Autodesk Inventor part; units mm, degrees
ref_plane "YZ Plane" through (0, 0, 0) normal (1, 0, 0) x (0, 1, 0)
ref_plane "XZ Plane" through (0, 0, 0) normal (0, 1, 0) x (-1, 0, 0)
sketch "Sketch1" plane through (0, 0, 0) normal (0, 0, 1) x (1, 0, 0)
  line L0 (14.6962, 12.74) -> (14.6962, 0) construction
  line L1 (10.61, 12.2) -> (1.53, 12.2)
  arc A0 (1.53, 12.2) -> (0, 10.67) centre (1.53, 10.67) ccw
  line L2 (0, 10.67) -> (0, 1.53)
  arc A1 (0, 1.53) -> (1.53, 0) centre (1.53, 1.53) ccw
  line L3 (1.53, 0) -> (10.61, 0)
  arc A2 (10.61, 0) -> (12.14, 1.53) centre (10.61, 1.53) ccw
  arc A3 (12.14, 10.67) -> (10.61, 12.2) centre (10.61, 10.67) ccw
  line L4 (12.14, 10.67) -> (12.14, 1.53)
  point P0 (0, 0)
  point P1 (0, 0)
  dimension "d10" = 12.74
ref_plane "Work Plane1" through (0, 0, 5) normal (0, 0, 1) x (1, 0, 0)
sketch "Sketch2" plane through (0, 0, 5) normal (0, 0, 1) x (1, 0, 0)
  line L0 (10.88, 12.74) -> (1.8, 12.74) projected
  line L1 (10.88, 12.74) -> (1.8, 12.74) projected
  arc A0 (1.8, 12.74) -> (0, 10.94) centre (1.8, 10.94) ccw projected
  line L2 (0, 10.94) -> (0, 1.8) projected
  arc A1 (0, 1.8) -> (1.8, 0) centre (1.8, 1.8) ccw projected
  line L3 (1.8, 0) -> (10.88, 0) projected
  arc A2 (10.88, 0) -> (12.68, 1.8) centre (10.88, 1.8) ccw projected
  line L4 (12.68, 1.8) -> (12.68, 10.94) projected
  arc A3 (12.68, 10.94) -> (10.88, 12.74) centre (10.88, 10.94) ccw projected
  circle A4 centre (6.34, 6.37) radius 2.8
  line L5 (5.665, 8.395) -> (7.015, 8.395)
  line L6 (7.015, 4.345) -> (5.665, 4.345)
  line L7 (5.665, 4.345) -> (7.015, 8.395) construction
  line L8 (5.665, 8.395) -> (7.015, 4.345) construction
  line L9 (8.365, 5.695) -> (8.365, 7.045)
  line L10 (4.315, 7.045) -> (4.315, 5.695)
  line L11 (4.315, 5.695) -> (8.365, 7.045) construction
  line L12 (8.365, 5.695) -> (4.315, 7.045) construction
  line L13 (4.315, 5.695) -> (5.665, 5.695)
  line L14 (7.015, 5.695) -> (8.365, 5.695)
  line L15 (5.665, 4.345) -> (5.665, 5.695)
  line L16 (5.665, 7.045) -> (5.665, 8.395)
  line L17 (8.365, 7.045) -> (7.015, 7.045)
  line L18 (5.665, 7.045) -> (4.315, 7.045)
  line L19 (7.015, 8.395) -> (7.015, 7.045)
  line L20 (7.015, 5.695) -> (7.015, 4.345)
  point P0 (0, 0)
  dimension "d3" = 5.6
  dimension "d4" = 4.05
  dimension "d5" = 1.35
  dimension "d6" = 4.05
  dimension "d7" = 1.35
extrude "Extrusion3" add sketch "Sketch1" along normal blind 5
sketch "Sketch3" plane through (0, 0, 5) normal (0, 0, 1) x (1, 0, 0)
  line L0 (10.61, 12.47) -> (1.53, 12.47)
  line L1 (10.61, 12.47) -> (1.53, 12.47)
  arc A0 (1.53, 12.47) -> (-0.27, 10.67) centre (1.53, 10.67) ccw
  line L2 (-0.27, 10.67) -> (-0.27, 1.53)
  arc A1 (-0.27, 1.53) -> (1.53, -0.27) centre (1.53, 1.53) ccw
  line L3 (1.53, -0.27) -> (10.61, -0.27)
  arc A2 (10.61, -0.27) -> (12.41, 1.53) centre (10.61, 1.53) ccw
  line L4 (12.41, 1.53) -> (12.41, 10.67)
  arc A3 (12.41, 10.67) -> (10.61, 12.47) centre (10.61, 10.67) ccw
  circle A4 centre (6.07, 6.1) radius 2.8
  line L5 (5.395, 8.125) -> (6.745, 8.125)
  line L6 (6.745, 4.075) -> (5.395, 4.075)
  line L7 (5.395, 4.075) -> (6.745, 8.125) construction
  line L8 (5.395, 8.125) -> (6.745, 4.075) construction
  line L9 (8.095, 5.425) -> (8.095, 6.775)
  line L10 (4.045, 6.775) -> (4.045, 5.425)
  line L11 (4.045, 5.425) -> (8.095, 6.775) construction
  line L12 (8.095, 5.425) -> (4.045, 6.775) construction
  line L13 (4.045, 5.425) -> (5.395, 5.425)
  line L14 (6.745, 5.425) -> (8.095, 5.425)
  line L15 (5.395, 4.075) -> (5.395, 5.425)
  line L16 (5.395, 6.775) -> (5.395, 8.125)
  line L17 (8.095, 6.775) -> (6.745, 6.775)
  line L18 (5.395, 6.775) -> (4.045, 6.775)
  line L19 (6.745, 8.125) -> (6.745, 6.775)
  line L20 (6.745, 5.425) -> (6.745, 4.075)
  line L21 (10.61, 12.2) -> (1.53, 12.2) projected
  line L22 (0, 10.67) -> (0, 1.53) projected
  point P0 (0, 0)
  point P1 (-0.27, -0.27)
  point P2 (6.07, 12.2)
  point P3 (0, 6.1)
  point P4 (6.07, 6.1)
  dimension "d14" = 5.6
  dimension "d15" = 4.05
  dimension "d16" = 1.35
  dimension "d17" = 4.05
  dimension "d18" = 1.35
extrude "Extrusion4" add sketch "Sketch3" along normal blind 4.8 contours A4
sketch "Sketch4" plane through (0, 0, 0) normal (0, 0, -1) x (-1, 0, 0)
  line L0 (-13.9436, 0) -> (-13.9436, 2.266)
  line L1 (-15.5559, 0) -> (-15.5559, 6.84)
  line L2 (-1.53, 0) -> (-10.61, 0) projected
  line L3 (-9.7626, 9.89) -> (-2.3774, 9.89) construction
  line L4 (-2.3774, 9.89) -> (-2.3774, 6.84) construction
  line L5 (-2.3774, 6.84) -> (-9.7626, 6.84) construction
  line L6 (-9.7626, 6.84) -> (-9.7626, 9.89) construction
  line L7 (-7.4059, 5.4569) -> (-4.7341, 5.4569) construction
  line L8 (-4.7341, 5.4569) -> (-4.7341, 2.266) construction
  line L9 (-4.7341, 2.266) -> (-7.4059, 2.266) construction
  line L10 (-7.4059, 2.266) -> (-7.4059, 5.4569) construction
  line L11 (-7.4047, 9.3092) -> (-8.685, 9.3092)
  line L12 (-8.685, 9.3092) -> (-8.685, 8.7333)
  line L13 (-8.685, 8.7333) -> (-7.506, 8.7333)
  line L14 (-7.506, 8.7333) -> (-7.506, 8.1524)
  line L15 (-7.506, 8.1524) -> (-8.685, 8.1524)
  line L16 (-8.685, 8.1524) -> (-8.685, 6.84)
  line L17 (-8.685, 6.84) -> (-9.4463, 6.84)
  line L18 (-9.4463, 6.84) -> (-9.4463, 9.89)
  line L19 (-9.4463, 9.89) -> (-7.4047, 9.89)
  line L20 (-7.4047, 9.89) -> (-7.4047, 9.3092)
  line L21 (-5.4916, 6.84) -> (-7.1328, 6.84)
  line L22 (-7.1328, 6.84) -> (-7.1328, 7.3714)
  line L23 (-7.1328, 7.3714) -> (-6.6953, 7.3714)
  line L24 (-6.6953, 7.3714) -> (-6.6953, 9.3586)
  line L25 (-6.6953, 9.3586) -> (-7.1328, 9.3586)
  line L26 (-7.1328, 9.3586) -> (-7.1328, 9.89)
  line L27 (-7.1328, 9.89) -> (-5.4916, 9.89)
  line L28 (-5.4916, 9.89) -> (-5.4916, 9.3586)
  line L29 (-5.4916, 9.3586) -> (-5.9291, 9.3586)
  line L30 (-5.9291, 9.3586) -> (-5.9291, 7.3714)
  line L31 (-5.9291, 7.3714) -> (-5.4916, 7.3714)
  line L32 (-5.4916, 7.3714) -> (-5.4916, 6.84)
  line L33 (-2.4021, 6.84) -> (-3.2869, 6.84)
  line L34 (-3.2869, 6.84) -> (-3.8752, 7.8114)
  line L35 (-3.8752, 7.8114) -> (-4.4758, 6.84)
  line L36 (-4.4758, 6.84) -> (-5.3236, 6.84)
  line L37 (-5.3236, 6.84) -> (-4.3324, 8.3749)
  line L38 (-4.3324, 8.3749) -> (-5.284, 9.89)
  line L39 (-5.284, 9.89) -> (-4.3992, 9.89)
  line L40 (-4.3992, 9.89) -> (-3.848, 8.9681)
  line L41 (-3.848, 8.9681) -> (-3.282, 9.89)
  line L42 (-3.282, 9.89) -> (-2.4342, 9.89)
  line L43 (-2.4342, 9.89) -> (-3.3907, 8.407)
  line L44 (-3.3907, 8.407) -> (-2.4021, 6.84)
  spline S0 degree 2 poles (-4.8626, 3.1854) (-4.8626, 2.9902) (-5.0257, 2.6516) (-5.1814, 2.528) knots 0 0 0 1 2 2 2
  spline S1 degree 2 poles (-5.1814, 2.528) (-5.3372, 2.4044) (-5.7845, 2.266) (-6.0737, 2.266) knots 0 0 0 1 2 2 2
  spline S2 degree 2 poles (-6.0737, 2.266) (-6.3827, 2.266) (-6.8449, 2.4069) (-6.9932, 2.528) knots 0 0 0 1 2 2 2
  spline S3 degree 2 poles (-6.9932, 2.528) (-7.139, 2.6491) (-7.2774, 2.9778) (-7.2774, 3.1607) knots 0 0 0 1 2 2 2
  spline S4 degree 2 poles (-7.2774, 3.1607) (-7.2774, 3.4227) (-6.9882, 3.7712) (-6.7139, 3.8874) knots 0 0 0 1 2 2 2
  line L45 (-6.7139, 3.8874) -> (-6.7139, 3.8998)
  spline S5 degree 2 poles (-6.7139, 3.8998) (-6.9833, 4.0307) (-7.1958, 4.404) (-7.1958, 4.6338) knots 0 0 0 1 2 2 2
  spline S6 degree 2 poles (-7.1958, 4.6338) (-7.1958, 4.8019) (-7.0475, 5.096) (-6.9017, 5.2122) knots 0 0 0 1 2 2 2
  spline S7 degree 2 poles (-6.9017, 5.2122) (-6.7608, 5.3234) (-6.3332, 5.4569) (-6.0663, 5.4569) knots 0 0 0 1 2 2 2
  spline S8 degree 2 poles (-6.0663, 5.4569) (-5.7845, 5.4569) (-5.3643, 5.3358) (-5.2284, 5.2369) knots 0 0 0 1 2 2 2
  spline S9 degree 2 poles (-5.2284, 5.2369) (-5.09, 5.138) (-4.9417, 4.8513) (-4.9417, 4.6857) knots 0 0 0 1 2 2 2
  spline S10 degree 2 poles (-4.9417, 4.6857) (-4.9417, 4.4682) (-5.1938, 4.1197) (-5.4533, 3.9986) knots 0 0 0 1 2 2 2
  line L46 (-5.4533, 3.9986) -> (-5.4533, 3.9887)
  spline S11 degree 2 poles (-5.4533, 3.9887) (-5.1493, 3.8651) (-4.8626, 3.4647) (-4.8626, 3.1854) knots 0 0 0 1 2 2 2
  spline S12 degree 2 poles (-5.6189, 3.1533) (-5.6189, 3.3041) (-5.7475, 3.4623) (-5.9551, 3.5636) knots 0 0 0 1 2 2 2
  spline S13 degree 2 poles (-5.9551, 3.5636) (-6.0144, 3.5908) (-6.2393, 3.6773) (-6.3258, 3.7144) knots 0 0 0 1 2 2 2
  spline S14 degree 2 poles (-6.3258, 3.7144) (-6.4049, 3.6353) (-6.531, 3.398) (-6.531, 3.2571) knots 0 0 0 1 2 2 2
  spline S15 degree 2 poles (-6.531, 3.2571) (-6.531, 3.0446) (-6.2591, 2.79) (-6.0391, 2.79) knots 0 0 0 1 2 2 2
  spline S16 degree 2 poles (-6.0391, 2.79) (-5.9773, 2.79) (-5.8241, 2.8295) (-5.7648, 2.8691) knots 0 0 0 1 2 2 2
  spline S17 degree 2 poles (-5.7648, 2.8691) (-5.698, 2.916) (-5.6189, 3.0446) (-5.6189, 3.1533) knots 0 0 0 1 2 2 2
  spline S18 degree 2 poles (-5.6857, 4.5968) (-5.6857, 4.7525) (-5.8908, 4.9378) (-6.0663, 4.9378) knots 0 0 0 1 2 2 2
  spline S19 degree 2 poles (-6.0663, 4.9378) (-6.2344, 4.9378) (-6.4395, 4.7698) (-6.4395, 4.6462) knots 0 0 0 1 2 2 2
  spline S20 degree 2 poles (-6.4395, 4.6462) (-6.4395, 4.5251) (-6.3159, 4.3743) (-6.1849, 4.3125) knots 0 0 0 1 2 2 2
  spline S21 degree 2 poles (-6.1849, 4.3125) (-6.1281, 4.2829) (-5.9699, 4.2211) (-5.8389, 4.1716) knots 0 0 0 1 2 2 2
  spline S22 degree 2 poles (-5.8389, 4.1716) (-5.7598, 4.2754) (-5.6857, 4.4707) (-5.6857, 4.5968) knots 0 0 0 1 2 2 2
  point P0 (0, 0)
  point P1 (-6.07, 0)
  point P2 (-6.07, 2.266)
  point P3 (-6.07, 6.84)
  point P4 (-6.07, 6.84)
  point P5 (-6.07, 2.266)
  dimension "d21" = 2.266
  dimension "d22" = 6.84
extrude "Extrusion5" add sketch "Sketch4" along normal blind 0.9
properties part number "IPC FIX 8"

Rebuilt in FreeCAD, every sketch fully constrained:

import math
import FreeCAD as App
import Part
import Sketcher

V = App.Vector
Q = App.Units.Quantity


def add_polygon(sketch, points):
    """Adds a closed chain of lines whose ends are joined by coincident constraints."""
    first, n = sketch.GeometryCount, len(points)
    for a, b in zip(points, points[1:] + points[:1]):
        sketch.addGeometry(Part.LineSegment(App.Vector(*a, 0), App.Vector(*b, 0)), False)
    for i in range(n):
        sketch.addConstraint(Sketcher.Constraint("Coincident", first + i, 2, first + (i + 1) % n, 1))

doc = App.newDocument("Part")
params = doc.addObject("Spreadsheet::Sheet", "Params")
for row, (alias, value) in enumerate([
    ("sketch1_radius", "1.53 mm"),
    ("sketch1_width", "9.08 mm"),
    ("sketch1_height", "9.14 mm"),
    ("pad1_length", "5 mm"),
    ("sketch2_diameter", "5.6 mm"),
    ("sketch2_width", "1.35 mm"),
    ("pad2_length", "4.8 mm"),
    ("sketch3_height", "3.05 mm"),
    ("pad3_length", "0.9 mm"),
], start=1):
    params.set(f"A{row}", alias)
    params.set(f"B{row}", "=" + value)
    params.setAlias(f"B{row}", alias)

body = doc.addObject("PartDesign::Body", "Body")

sketch1 = body.newObject("Sketcher::SketchObject", "Sketch")
sketch1.AttachmentSupport = (doc.getObject("XY_Plane"), [""])
sketch1.MapMode = "FlatFace"
sketch1.addGeometry([
    Part.ArcOfCircle(Part.Circle(V(10.61, 10.67, 0), V(0, 0, 1), 1.53), math.radians(0), math.radians(90)),
    Part.LineSegment(V(10.61, 12.2, 0), V(1.53, 12.2, 0)),
    Part.ArcOfCircle(Part.Circle(V(1.53, 10.67, 0), V(0, 0, 1), 1.53), math.radians(90), math.radians(180)),
    Part.LineSegment(V(0, 10.67, 0), V(0, 1.53, 0)),
    Part.ArcOfCircle(Part.Circle(V(1.53, 1.53, 0), V(0, 0, 1), 1.53), math.radians(180), math.radians(270)),
    Part.LineSegment(V(1.53, 0, 0), V(10.61, 0, 0)),
    Part.ArcOfCircle(Part.Circle(V(10.61, 1.53, 0), V(0, 0, 1), 1.53), math.radians(-90), math.radians(0)),
    Part.LineSegment(V(12.14, 1.53, 0), V(12.14, 10.67, 0)),
], False)
sketch1.addConstraint([
    Sketcher.Constraint("Tangent", 0, 2, 1, 1),
    Sketcher.Constraint("Tangent", 1, 2, 2, 1),
    Sketcher.Constraint("Tangent", 2, 2, 3, 1),
    Sketcher.Constraint("Tangent", 3, 2, 4, 1),
    Sketcher.Constraint("Tangent", 4, 2, 5, 1),
    Sketcher.Constraint("Tangent", 5, 2, 6, 1),
    Sketcher.Constraint("Tangent", 6, 2, 7, 1),
    Sketcher.Constraint("Tangent", 7, 2, 0, 1),
    Sketcher.Constraint("Horizontal", 1),
    Sketcher.Constraint("Vertical", 3),
    Sketcher.Constraint("Horizontal", 5),
    Sketcher.Constraint("Vertical", 7),
    Sketcher.Constraint("Equal", 0, 2),
    Sketcher.Constraint("Equal", 2, 4),
    Sketcher.Constraint("Equal", 4, 6),
    Sketcher.Constraint("PointOnObject", 2, 2, -2),
    Sketcher.Constraint("PointOnObject", 4, 2, -1),
    Sketcher.Constraint("Radius", 0, Q("1.53 mm")),
    Sketcher.Constraint("DistanceX", 1, 2, 1, 1, Q("9.08 mm")),
    Sketcher.Constraint("DistanceY", 3, 2, 3, 1, Q("9.14 mm")),
])
sketch1.setExpression("Constraints[17]", "Params.sketch1_radius")
sketch1.setExpression("Constraints[18]", "Params.sketch1_width")
sketch1.setExpression("Constraints[19]", "Params.sketch1_height")
pad1 = body.newObject("PartDesign::Pad", "Pad")
pad1.Profile = sketch1
pad1.setExpression("Length", "Params.pad1_length")

sketch2 = body.newObject("Sketcher::SketchObject", "Sketch001")
sketch2.AttachmentSupport = (doc.getObject("XY_Plane"), [""])
sketch2.MapMode = "FlatFace"
sketch2.AttachmentOffset = App.Placement(V(0, 0, 5), App.Rotation())
sketch2.addGeometry(Part.Circle(V(6.07, 6.1, 0), V(0, 0, 1), 2.8), False)
add_polygon(sketch2, [(5.395, 6.775), (5.395, 8.125), (6.745, 8.125), (6.745, 6.775), (8.095, 6.775), (8.095, 5.425), (6.745, 5.425), (6.745, 4.075), (5.395, 4.075), (5.395, 5.425), (4.045, 5.425), (4.045, 6.775)])
sketch2.addConstraint([
    Sketcher.Constraint("Vertical", 1),
    Sketcher.Constraint("Horizontal", 2),
    Sketcher.Constraint("Vertical", 3),
    Sketcher.Constraint("Horizontal", 4),
    Sketcher.Constraint("Vertical", 5),
    Sketcher.Constraint("Horizontal", 6),
    Sketcher.Constraint("Vertical", 7),
    Sketcher.Constraint("Horizontal", 8),
    Sketcher.Constraint("Vertical", 9),
    Sketcher.Constraint("Horizontal", 10),
    Sketcher.Constraint("Vertical", 11),
    Sketcher.Constraint("Horizontal", 12),
    Sketcher.Constraint("Horizontal", 6, 2, 9, 2),
    Sketcher.Constraint("Horizontal", 4, 2, 11, 2),
    Sketcher.Constraint("Vertical", 3, 2, 6, 2),
    Sketcher.Constraint("Vertical", 1, 2, 8, 2),
    Sketcher.Constraint("Equal", 2, 4),
    Sketcher.Constraint("Equal", 8, 10),
    Sketcher.Constraint("Equal", 12, 1),
    Sketcher.Constraint("Equal", 3, 5),
    Sketcher.Constraint("Equal", 5, 7),
    Sketcher.Constraint("Diameter", 0, Q("5.6 mm")),
    Sketcher.Constraint("DistanceX", 2, 1, 2, 2, Q("1.35 mm")),
    Sketcher.Constraint("DistanceY", -1, 1, 0, 3, Q("6.1 mm")),
    Sketcher.Constraint("DistanceX", -1, 1, 0, 3, Q("6.07 mm")),
    Sketcher.Constraint("DistanceX", -1, 1, 1, 2, Q("5.395 mm")),
    Sketcher.Constraint("DistanceY", -1, 1, 1, 2, Q("8.125 mm")),
])
sketch2.setExpression("Constraints[33]", "Params.sketch2_diameter")
sketch2.setExpression("Constraints[34]", "Params.sketch2_width")
pad2 = body.newObject("PartDesign::Pad", "Pad001")
pad2.Profile = sketch2
pad2.setExpression("Length", "Params.pad2_length")

sketch3 = body.newObject("Sketcher::SketchObject", "Sketch002")
sketch3.AttachmentSupport = (doc.getObject("XY_Plane"), [""])
sketch3.MapMode = "FlatFace"
add_polygon(sketch3, [(8.685, 9.3092), (7.4047, 9.3092), (7.4047, 9.89), (9.4463, 9.89), (9.4463, 6.84), (8.685, 6.84), (8.685, 8.1524), (7.506, 8.1524), (7.506, 8.7333), (8.685, 8.7333)])
add_polygon(sketch3, [(7.1328, 6.84), (5.4916, 6.84), (5.4916, 7.3714), (5.9291, 7.3714), (5.9291, 9.3586), (5.4916, 9.3586), (5.4916, 9.89), (7.1328, 9.89), (7.1328, 9.3586), (6.6953, 9.3586), (6.6953, 7.3714), (7.1328, 7.3714)])
add_polygon(sketch3, [(3.2869, 6.84), (2.4021, 6.84), (3.3907, 8.407), (2.4342, 9.89), (3.282, 9.89), (3.848, 8.9681), (4.3992, 9.89), (5.284, 9.89), (4.3324, 8.3749), (5.3236, 6.84), (4.4758, 6.84), (3.8752, 7.8114)])
sketch3.addGeometry(Part.BSplineCurve([V(4.8626, 3.1854, 0), V(4.8626, 2.9902, 0), V(5.0257, 2.6516, 0), V(5.1814, 2.528, 0)], [3, 1, 3], [0, 1, 2], False, 2, [1, 1, 1, 1], False), False)
sketch3.addGeometry(Part.BSplineCurve([V(5.4533, 3.9887, 0), V(5.1493, 3.8651, 0), V(4.8626, 3.4647, 0), V(4.8626, 3.1854, 0)], [3, 1, 3], [0, 1, 2], False, 2, [1, 1, 1, 1], False), False)
sketch3.addGeometry(Part.LineSegment(V(5.4533, 3.9887, 0), V(5.4533, 3.9986, 0)), False)
sketch3.addGeometry(Part.BSplineCurve([V(4.9417, 4.6857, 0), V(4.9417, 4.4682, 0), V(5.1938, 4.1197, 0), V(5.4533, 3.9986, 0)], [3, 1, 3], [0, 1, 2], False, 2, [1, 1, 1, 1], False), False)
sketch3.addGeometry(Part.BSplineCurve([V(5.2284, 5.2369, 0), V(5.09, 5.138, 0), V(4.9417, 4.8513, 0), V(4.9417, 4.6857, 0)], [3, 1, 3], [0, 1, 2], False, 2, [1, 1, 1, 1], False), False)
sketch3.addGeometry(Part.BSplineCurve([V(6.0663, 5.4569, 0), V(5.7845, 5.4569, 0), V(5.3643, 5.3358, 0), V(5.2284, 5.2369, 0)], [3, 1, 3], [0, 1, 2], False, 2, [1, 1, 1, 1], False), False)
sketch3.addGeometry(Part.BSplineCurve([V(6.9017, 5.2122, 0), V(6.7608, 5.3234, 0), V(6.3332, 5.4569, 0), V(6.0663, 5.4569, 0)], [3, 1, 3], [0, 1, 2], False, 2, [1, 1, 1, 1], False), False)
sketch3.addGeometry(Part.BSplineCurve([V(7.1958, 4.6338, 0), V(7.1958, 4.8019, 0), V(7.0475, 5.096, 0), V(6.9017, 5.2122, 0)], [3, 1, 3], [0, 1, 2], False, 2, [1, 1, 1, 1], False), False)
sketch3.addGeometry(Part.BSplineCurve([V(6.7139, 3.8998, 0), V(6.9833, 4.0307, 0), V(7.1958, 4.404, 0), V(7.1958, 4.6338, 0)], [3, 1, 3], [0, 1, 2], False, 2, [1, 1, 1, 1], False), False)
sketch3.addGeometry(Part.LineSegment(V(6.7139, 3.8998, 0), V(6.7139, 3.8874, 0)), False)
sketch3.addGeometry(Part.BSplineCurve([V(7.2774, 3.1607, 0), V(7.2774, 3.4227, 0), V(6.9882, 3.7712, 0), V(6.7139, 3.8874, 0)], [3, 1, 3], [0, 1, 2], False, 2, [1, 1, 1, 1], False), False)
sketch3.addGeometry(Part.BSplineCurve([V(6.9932, 2.528, 0), V(7.139, 2.6491, 0), V(7.2774, 2.9778, 0), V(7.2774, 3.1607, 0)], [3, 1, 3], [0, 1, 2], False, 2, [1, 1, 1, 1], False), False)
sketch3.addGeometry(Part.BSplineCurve([V(6.0737, 2.266, 0), V(6.3827, 2.266, 0), V(6.8449, 2.4069, 0), V(6.9932, 2.528, 0)], [3, 1, 3], [0, 1, 2], False, 2, [1, 1, 1, 1], False), False)
sketch3.addGeometry(Part.BSplineCurve([V(5.1814, 2.528, 0), V(5.3372, 2.4044, 0), V(5.7845, 2.266, 0), V(6.0737, 2.266, 0)], [3, 1, 3], [0, 1, 2], False, 2, [1, 1, 1, 1], False), False)
sketch3.addGeometry(Part.BSplineCurve([V(5.6189, 3.1533, 0), V(5.6189, 3.3041, 0), V(5.7475, 3.4623, 0), V(5.9551, 3.5636, 0)], [3, 1, 3], [0, 1, 2], False, 2, [1, 1, 1, 1], False), False)
sketch3.addGeometry(Part.BSplineCurve([V(5.7648, 2.8691, 0), V(5.698, 2.916, 0), V(5.6189, 3.0446, 0), V(5.6189, 3.1533, 0)], [3, 1, 3], [0, 1, 2], False, 2, [1, 1, 1, 1], False), False)
sketch3.addGeometry(Part.BSplineCurve([V(6.0391, 2.79, 0), V(5.9773, 2.79, 0), V(5.8241, 2.8295, 0), V(5.7648, 2.8691, 0)], [3, 1, 3], [0, 1, 2], False, 2, [1, 1, 1, 1], False), False)
sketch3.addGeometry(Part.BSplineCurve([V(6.531, 3.2571, 0), V(6.531, 3.0446, 0), V(6.2591, 2.79, 0), V(6.0391, 2.79, 0)], [3, 1, 3], [0, 1, 2], False, 2, [1, 1, 1, 1], False), False)
sketch3.addGeometry(Part.BSplineCurve([V(6.3258, 3.7144, 0), V(6.4049, 3.6353, 0), V(6.531, 3.398, 0), V(6.531, 3.2571, 0)], [3, 1, 3], [0, 1, 2], False, 2, [1, 1, 1, 1], False), False)
sketch3.addGeometry(Part.BSplineCurve([V(5.9551, 3.5636, 0), V(6.0144, 3.5908, 0), V(6.2393, 3.6773, 0), V(6.3258, 3.7144, 0)], [3, 1, 3], [0, 1, 2], False, 2, [1, 1, 1, 1], False), False)
sketch3.addGeometry(Part.BSplineCurve([V(5.6857, 4.5968, 0), V(5.6857, 4.7525, 0), V(5.8908, 4.9378, 0), V(6.0663, 4.9378, 0)], [3, 1, 3], [0, 1, 2], False, 2, [1, 1, 1, 1], False), False)
sketch3.addGeometry(Part.BSplineCurve([V(5.8389, 4.1716, 0), V(5.7598, 4.2754, 0), V(5.6857, 4.4707, 0), V(5.6857, 4.5968, 0)], [3, 1, 3], [0, 1, 2], False, 2, [1, 1, 1, 1], False), False)
sketch3.addGeometry(Part.BSplineCurve([V(6.1849, 4.3125, 0), V(6.1281, 4.2829, 0), V(5.9699, 4.2211, 0), V(5.8389, 4.1716, 0)], [3, 1, 3], [0, 1, 2], False, 2, [1, 1, 1, 1], False), False)
sketch3.addGeometry(Part.BSplineCurve([V(6.4395, 4.6462, 0), V(6.4395, 4.5251, 0), V(6.3159, 4.3743, 0), V(6.1849, 4.3125, 0)], [3, 1, 3], [0, 1, 2], False, 2, [1, 1, 1, 1], False), False)
sketch3.addGeometry(Part.BSplineCurve([V(6.0663, 4.9378, 0), V(6.2344, 4.9378, 0), V(6.4395, 4.7698, 0), V(6.4395, 4.6462, 0)], [3, 1, 3], [0, 1, 2], False, 2, [1, 1, 1, 1], False), False)
sketch3.addConstraint([
    Sketcher.Constraint("Block", 34),
    Sketcher.Constraint("Block", 35),
    Sketcher.Constraint("Block", 37),
    Sketcher.Constraint("Block", 38),
    Sketcher.Constraint("Block", 39),
    Sketcher.Constraint("Block", 40),
    Sketcher.Constraint("Block", 41),
    Sketcher.Constraint("Block", 42),
    Sketcher.Constraint("Block", 44),
    Sketcher.Constraint("Block", 45),
    Sketcher.Constraint("Block", 46),
    Sketcher.Constraint("Block", 47),
    Sketcher.Constraint("Block", 48),
    Sketcher.Constraint("Block", 49),
    Sketcher.Constraint("Block", 50),
    Sketcher.Constraint("Block", 51),
    Sketcher.Constraint("Block", 52),
    Sketcher.Constraint("Block", 53),
    Sketcher.Constraint("Block", 54),
    Sketcher.Constraint("Block", 55),
    Sketcher.Constraint("Block", 56),
    Sketcher.Constraint("Block", 57),
    Sketcher.Constraint("Block", 58),
    Sketcher.Constraint("Coincident", 35, 1, 36, 1),
    Sketcher.Constraint("Coincident", 36, 2, 37, 2),
    Sketcher.Constraint("Coincident", 42, 1, 43, 1),
    Sketcher.Constraint("Coincident", 43, 2, 44, 2),
    Sketcher.Constraint("Horizontal", 0),
    Sketcher.Constraint("Vertical", 1),
    Sketcher.Constraint("Horizontal", 2),
    Sketcher.Constraint("Vertical", 3),
    Sketcher.Constraint("Horizontal", 4),
    Sketcher.Constraint("Vertical", 5),
    Sketcher.Constraint("Horizontal", 6),
    Sketcher.Constraint("Vertical", 7),
    Sketcher.Constraint("Horizontal", 8),
    Sketcher.Constraint("Vertical", 9),
    Sketcher.Constraint("Horizontal", 10),
    Sketcher.Constraint("Vertical", 11),
    Sketcher.Constraint("Horizontal", 12),
    Sketcher.Constraint("Vertical", 13),
    Sketcher.Constraint("Horizontal", 14),
    Sketcher.Constraint("Vertical", 15),
    Sketcher.Constraint("Horizontal", 16),
    Sketcher.Constraint("Vertical", 17),
    Sketcher.Constraint("Horizontal", 18),
    Sketcher.Constraint("Vertical", 19),
    Sketcher.Constraint("Horizontal", 20),
    Sketcher.Constraint("Vertical", 21),
    Sketcher.Constraint("Horizontal", 22),
    Sketcher.Constraint("Horizontal", 25),
    Sketcher.Constraint("Horizontal", 28),
    Sketcher.Constraint("Horizontal", 31),
    Sketcher.Constraint("Horizontal", 4, 2, 10, 2),
    Sketcher.Constraint("Horizontal", 2, 2, 15, 2),
    Sketcher.Constraint("Horizontal", 14, 2, 17, 2),
    Sketcher.Constraint("Horizontal", 12, 2, 19, 2),
    Sketcher.Constraint("Horizontal", 21, 2, 22, 2),
    Sketcher.Constraint("Horizontal", 16, 2, 24, 2),
    Sketcher.Constraint("Horizontal", 25, 2, 27, 2),
    Sketcher.Constraint("Horizontal", 22, 2, 30, 2),
    Sketcher.Constraint("Vertical", 5, 2, 8, 2),
    Sketcher.Constraint("Vertical", 11, 2, 14, 2),
    Sketcher.Constraint("Vertical", 17, 2, 20, 2),
    Sketcher.Constraint("Equal", 14, 18),
    Sketcher.Constraint("Equal", 22, 28),
    Sketcher.Constraint("Equal", 25, 31),
    Sketcher.Constraint("Equal", 1, 7),
    Sketcher.Constraint("Equal", 11, 15),
    Sketcher.Constraint("DistanceY", -1, 1, 3, 2, Q("6.84 mm")),
    Sketcher.Constraint("Angle", 33, Q("-121.2 deg")),
    Sketcher.Constraint("DistanceY", 3, 2, 3, 1, Q("3.05 mm")),
    Sketcher.Constraint("Angle", 24, Q("122.821 deg")),
    Sketcher.Constraint("DistanceX", 6, 2, 6, 1, Q("1.179 mm")),
    Sketcher.Constraint("DistanceY", 7, 1, 7, 2, Q("0.581 mm")),
    Sketcher.Constraint("DistanceY", 9, 1, 9, 2, Q("0.576 mm")),
    Sketcher.Constraint("DistanceX", 27, 2, 13, 2, Q("1.53 mm")),
    Sketcher.Constraint("DistanceY", 11, 2, 32, 2, Q("0.44 mm")),
    Sketcher.Constraint("Distance", 27, Q("1.074 mm")),
    Sketcher.Constraint("Distance", 32, Q("1.142 mm")),
    Sketcher.Constraint("DistanceX", 0, 2, 0, 1, Q("1.2803 mm")),
    Sketcher.Constraint("DistanceX", 2, 1, 2, 2, Q("2.0416 mm")),
    Sketcher.Constraint("DistanceX", 10, 2, 10, 1, Q("1.6412 mm")),
    Sketcher.Constraint("DistanceX", 12, 1, 12, 2, Q("0.4375 mm")),
    Sketcher.Constraint("DistanceX", 22, 2, 22, 1, Q("0.8848 mm")),
    Sketcher.Constraint("DistanceX", 25, 1, 25, 2, Q("0.8478 mm")),
    Sketcher.Constraint("DistanceY", 11, 1, 11, 2, Q("0.5314 mm")),
    Sketcher.Constraint("DistanceX", -1, 1, 4, 2, Q("8.685 mm")),
    Sketcher.Constraint("DistanceX", -1, 1, 12, 2, Q("5.929 mm")),
    Sketcher.Constraint("DistanceX", -1, 1, 22, 2, Q("2.402 mm")),
    Sketcher.Constraint("DistanceY", -1, 1, 23, 2, Q("8.407 mm")),
    Sketcher.Constraint("DistanceX", -1, 1, 25, 2, Q("3.282 mm")),
    Sketcher.Constraint("DistanceX", -1, 1, 26, 2, Q("3.848 mm")),
    Sketcher.Constraint("DistanceY", -1, 1, 29, 2, Q("8.375 mm")),
    Sketcher.Constraint("Distance", 29, Q("1.7892 mm")),
])
sketch3.setExpression("Constraints[105]", "Params.sketch3_height")
pad3 = body.newObject("PartDesign::Pad", "Pad002")
pad3.Profile = sketch3
pad3.setExpression("Length", "Params.pad3_length")
pad3.Reversed = True

doc.recompute()
